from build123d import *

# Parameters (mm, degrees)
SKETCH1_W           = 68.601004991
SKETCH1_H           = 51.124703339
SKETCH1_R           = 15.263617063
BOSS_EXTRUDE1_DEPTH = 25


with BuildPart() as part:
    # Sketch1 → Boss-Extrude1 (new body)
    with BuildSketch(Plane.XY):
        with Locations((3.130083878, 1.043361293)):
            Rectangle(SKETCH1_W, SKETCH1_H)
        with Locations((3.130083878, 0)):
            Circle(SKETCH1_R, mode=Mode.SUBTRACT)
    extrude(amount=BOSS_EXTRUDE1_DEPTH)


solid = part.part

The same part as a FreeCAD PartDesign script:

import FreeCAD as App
import Part
import Sketcher
Q = App.Units.Quantity

doc = App.newDocument("Part")
body = doc.addObject("PartDesign::Body", "Body")

# Sketch on XY plane
sketch1 = body.newObject("Sketcher::SketchObject", "Sketch")
sketch1.AttachmentSupport = (doc.getObject("XY_Plane"), [""])
sketch1.MapMode = "FlatFace"
sketch1.addGeometry(Part.LineSegment(App.Vector(-31, 27, 0), App.Vector(-31, -25, 0)), False)
sketch1.addGeometry(Part.LineSegment(App.Vector(-31, -25, 0), App.Vector(37, -25, 0)), False)
sketch1.addGeometry(Part.LineSegment(App.Vector(37, -25, 0), App.Vector(37, 27, 0)), False)
sketch1.addGeometry(Part.LineSegment(App.Vector(37, 27, 0), App.Vector(-31, 27, 0)), False)
sketch1.addGeometry(Part.Circle(App.Vector(3, 0, 0), App.Vector(0, 0, 1), 15), False)
sketch1.addConstraint(Sketcher.Constraint("Coincident", 0, 2, 1, 1))
sketch1.addConstraint(Sketcher.Constraint("Coincident", 1, 2, 2, 1))
sketch1.addConstraint(Sketcher.Constraint("Coincident", 2, 2, 3, 1))
sketch1.addConstraint(Sketcher.Constraint("Coincident", 3, 2, 0, 1))
sketch1.addConstraint(Sketcher.Constraint("Vertical", 0))
sketch1.addConstraint(Sketcher.Constraint("Horizontal", 1))
sketch1.addConstraint(Sketcher.Constraint("Vertical", 2))
sketch1.addConstraint(Sketcher.Constraint("Horizontal", 3))
sketch1.addConstraint(Sketcher.Constraint("PointOnObject", 4, 3, -1))
sketch1.addConstraint(Sketcher.Constraint("Diameter", 4, Q("30.527234 mm")))
sketch1.addConstraint(Sketcher.Constraint("DistanceX", 1, 1, 1, 2, Q("68.601005 mm")))
sketch1.addConstraint(Sketcher.Constraint("DistanceY", 0, 2, 0, 1, Q("51.124703 mm")))
sketch1.addConstraint(Sketcher.Constraint("DistanceX", 0, 2, -1, 1, Q("31.170419 mm")))
sketch1.addConstraint(Sketcher.Constraint("DistanceY", 0, 2, -1, 1, Q("24.51899 mm")))
sketch1.addConstraint(Sketcher.Constraint("DistanceX", -1, 1, 4, 3, Q("3.130084 mm")))
pad1 = body.newObject("PartDesign::Pad", "Pad")
pad1.Profile = sketch1
pad1.Length = 25

doc.recompute()
